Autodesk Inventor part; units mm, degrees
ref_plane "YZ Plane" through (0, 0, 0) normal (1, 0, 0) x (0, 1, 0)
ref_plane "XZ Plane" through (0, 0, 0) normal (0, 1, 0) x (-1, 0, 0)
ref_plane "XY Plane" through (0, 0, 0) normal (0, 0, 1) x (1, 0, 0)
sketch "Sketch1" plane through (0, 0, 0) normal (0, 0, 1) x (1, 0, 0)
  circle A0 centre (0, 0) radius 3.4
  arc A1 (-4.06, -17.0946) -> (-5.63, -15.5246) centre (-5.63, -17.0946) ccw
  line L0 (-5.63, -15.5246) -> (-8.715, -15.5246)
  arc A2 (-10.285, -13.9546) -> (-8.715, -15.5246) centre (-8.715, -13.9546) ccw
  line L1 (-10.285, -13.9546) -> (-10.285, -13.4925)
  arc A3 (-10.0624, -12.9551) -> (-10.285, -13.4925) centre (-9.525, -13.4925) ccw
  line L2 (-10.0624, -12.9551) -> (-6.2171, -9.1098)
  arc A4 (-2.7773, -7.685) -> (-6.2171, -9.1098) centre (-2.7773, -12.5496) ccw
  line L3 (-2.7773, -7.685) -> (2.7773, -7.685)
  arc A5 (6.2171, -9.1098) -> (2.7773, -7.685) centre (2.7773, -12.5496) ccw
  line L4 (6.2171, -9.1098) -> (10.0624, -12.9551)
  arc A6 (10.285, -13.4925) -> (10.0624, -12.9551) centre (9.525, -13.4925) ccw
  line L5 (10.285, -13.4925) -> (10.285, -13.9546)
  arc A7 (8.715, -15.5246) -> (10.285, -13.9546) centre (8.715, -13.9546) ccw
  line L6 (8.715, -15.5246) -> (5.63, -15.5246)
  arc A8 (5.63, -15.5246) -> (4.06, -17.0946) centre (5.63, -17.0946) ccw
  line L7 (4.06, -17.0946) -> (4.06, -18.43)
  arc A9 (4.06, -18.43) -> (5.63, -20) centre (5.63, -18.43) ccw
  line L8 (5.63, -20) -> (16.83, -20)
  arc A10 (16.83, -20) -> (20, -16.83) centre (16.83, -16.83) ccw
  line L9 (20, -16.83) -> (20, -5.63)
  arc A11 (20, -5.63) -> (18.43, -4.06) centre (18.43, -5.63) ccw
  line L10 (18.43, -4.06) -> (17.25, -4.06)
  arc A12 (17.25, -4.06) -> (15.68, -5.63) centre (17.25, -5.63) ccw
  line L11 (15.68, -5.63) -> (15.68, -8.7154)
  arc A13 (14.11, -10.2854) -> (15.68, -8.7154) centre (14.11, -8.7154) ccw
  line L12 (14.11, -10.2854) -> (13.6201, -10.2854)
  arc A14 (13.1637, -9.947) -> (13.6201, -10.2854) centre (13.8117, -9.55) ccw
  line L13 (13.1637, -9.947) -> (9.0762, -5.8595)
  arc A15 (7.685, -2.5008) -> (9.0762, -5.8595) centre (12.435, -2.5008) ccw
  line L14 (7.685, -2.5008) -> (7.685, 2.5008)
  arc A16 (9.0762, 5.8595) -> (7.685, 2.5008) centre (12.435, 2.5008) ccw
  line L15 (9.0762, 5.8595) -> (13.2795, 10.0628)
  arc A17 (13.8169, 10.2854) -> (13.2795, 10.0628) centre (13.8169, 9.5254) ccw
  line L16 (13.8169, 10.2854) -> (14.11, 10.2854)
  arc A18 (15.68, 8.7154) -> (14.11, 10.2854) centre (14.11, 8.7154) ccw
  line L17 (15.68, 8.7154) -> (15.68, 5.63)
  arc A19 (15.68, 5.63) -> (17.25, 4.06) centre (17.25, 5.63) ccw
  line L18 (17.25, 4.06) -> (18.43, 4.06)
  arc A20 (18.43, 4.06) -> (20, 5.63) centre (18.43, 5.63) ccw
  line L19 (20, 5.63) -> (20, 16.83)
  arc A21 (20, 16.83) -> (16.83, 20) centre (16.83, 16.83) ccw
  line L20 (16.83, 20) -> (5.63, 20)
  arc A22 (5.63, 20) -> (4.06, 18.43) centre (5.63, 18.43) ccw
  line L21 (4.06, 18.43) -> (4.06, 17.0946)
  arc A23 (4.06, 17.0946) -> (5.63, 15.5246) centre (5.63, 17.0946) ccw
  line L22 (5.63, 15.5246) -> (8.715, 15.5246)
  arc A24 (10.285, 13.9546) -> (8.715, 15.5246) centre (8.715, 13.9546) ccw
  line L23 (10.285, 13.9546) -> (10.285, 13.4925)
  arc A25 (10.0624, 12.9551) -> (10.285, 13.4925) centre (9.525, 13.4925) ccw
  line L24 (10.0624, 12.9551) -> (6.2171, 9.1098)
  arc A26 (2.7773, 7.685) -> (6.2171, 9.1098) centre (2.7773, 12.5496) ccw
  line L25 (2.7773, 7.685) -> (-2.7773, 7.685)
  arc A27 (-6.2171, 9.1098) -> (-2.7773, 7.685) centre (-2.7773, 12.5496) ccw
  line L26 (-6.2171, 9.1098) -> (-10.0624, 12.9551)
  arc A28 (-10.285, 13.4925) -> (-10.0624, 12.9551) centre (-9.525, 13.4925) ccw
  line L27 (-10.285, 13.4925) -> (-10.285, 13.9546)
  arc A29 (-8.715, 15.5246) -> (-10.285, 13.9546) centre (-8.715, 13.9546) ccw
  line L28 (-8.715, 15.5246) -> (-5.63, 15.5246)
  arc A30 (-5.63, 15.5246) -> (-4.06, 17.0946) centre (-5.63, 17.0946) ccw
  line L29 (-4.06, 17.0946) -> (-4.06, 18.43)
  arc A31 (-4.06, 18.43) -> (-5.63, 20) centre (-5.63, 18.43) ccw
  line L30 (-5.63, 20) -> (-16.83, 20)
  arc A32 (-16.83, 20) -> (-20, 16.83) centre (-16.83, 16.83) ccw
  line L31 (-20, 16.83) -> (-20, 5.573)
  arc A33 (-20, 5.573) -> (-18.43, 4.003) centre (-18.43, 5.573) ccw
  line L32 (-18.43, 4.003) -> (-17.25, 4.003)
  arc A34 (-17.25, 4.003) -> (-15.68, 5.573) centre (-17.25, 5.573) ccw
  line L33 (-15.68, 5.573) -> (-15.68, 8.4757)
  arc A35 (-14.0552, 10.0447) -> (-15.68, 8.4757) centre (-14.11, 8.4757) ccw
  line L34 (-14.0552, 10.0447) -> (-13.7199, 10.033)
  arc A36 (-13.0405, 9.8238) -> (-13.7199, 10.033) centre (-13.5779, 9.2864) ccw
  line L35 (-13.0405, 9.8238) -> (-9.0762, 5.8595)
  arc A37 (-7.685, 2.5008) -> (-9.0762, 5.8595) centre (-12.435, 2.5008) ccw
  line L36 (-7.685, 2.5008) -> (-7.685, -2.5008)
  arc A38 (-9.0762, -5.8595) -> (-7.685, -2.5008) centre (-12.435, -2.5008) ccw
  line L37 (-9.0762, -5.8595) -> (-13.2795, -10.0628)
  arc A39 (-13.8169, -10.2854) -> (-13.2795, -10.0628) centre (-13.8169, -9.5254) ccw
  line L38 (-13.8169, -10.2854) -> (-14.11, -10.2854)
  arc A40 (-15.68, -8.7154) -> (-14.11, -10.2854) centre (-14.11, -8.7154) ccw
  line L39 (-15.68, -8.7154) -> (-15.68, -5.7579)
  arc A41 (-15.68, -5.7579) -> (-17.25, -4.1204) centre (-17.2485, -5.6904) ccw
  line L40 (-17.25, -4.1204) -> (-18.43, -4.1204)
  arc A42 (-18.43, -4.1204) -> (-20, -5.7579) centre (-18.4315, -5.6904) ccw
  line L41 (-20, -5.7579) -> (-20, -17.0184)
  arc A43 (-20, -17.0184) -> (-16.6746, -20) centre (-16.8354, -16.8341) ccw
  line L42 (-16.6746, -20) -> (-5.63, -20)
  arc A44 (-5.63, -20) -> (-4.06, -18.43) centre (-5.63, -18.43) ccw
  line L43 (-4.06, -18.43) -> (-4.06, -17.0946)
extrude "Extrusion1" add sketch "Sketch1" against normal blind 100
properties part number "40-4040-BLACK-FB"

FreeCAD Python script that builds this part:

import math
import FreeCAD as App
import Part
import Sketcher

V = App.Vector

doc = App.newDocument("Part")
body = doc.addObject("PartDesign::Body", "Body")

sketch1 = body.newObject("Sketcher::SketchObject", "Sketch")
sketch1.AttachmentSupport = (doc.getObject("XY_Plane"), [""])
sketch1.MapMode = "FlatFace"
sketch1.addGeometry([
    Part.LineSegment(V(-4.06, -18.43, 0), V(-4.06, -17.0946, 0)),
    Part.ArcOfCircle(Part.Circle(V(-5.63, -17.0946, 0), V(0, 0, 1), 1.57), math.radians(0), math.radians(90)),
    Part.LineSegment(V(-5.63, -15.5246, 0), V(-8.715, -15.5246, 0)),
    Part.ArcOfCircle(Part.Circle(V(-8.715, -13.9546, 0), V(0, 0, 1), 1.57), math.radians(180), math.radians(270)),
    Part.LineSegment(V(-10.285, -13.9546, 0), V(-10.285, -13.4925, 0)),
    Part.ArcOfCircle(Part.Circle(V(-9.525, -13.4925, 0), V(0, 0, 1), 0.759998), math.radians(135), math.radians(180)),
    Part.LineSegment(V(-10.0624, -12.9551, 0), V(-6.2171, -9.1098, 0)),
    Part.ArcOfCircle(Part.Circle(V(-2.7773, -12.5496, 0), V(0, 0, 1), 4.8646), math.radians(90), math.radians(135)),
    Part.LineSegment(V(-2.7773, -7.685, 0), V(2.7773, -7.685, 0)),
    Part.ArcOfCircle(Part.Circle(V(2.7773, -12.5496, 0), V(0, 0, 1), 4.864612), math.radians(45), math.radians(90)),
    Part.LineSegment(V(6.2171, -9.1098, 0), V(10.0624, -12.9551, 0)),
    Part.ArcOfCircle(Part.Circle(V(9.525, -13.4925, 0), V(0, 0, 1), 0.76), math.radians(0), math.radians(45)),
    Part.LineSegment(V(10.285, -13.4925, 0), V(10.285, -13.9546, 0)),
    Part.ArcOfCircle(Part.Circle(V(8.715, -13.9546, 0), V(0, 0, 1), 1.57), math.radians(-90), math.radians(0)),
    Part.LineSegment(V(8.715, -15.5246, 0), V(5.63, -15.5246, 0)),
    Part.ArcOfCircle(Part.Circle(V(5.63, -17.0946, 0), V(0, 0, 1), 1.57), math.radians(90), math.radians(180)),
    Part.LineSegment(V(4.06, -17.0946, 0), V(4.06, -18.43, 0)),
    Part.ArcOfCircle(Part.Circle(V(5.63, -18.43, 0), V(0, 0, 1), 1.57), math.radians(180), math.radians(270)),
    Part.LineSegment(V(5.63, -20, 0), V(16.83, -20, 0)),
    Part.ArcOfCircle(Part.Circle(V(16.83, -16.83, 0), V(0, 0, 1), 3.17), math.radians(-90), math.radians(0)),
    Part.LineSegment(V(20, -16.83, 0), V(20, -5.63, 0)),
    Part.ArcOfCircle(Part.Circle(V(18.43, -5.63, 0), V(0, 0, 1), 1.57), math.radians(0), math.radians(90)),
    Part.LineSegment(V(18.43, -4.06, 0), V(17.25, -4.06, 0)),
    Part.ArcOfCircle(Part.Circle(V(17.25, -5.63, 0), V(0, 0, 1), 1.57), math.radians(90), math.radians(180)),
    Part.LineSegment(V(15.68, -5.63, 0), V(15.68, -8.7154, 0)),
    Part.ArcOfCircle(Part.Circle(V(14.11, -8.7154, 0), V(0, 0, 1), 1.57), math.radians(-90), math.radians(0)),
    Part.LineSegment(V(14.11, -10.2854, 0), V(13.6201, -10.2854, 0)),
    Part.ArcOfCircle(Part.Circle(V(13.8117, -9.55, 0), V(0, 0, 1), 0.759943), math.radians(-148.506101), math.radians(-104.603112)),
    Part.LineSegment(V(13.1637, -9.947, 0), V(9.0762, -5.8595, 0)),
    Part.ArcOfCircle(Part.Circle(V(12.435, -2.5008, 0), V(0, 0, 1), 4.75), math.radians(180), math.radians(224.999147)),
    Part.LineSegment(V(7.685, -2.5008, 0), V(7.685, 2.5008, 0)),
    Part.ArcOfCircle(Part.Circle(V(12.435, 2.5008, 0), V(0, 0, 1), 4.74999), math.radians(135.000853), math.radians(180)),
    Part.LineSegment(V(9.0762, 5.8595, 0), V(13.2795, 10.0628, 0)),
    Part.ArcOfCircle(Part.Circle(V(13.8169, 9.5254, 0), V(0, 0, 1), 0.76), math.radians(90), math.radians(135)),
    Part.LineSegment(V(13.8169, 10.2854, 0), V(14.11, 10.2854, 0)),
    Part.ArcOfCircle(Part.Circle(V(14.11, 8.7154, 0), V(0, 0, 1), 1.57), math.radians(0), math.radians(90)),
    Part.LineSegment(V(15.68, 8.7154, 0), V(15.68, 5.63, 0)),
    Part.ArcOfCircle(Part.Circle(V(17.25, 5.63, 0), V(0, 0, 1), 1.57), math.radians(180), math.radians(270)),
    Part.LineSegment(V(17.25, 4.06, 0), V(18.43, 4.06, 0)),
    Part.ArcOfCircle(Part.Circle(V(18.43, 5.63, 0), V(0, 0, 1), 1.57), math.radians(-90), math.radians(0)),
    Part.LineSegment(V(20, 5.63, 0), V(20, 16.83, 0)),
    Part.ArcOfCircle(Part.Circle(V(16.83, 16.83, 0), V(0, 0, 1), 3.17), math.radians(0), math.radians(90)),
    Part.LineSegment(V(16.83, 20, 0), V(5.63, 20, 0)),
    Part.ArcOfCircle(Part.Circle(V(5.63, 18.43, 0), V(0, 0, 1), 1.57), math.radians(90), math.radians(180)),
    Part.LineSegment(V(4.06, 18.43, 0), V(4.06, 17.0946, 0)),
    Part.ArcOfCircle(Part.Circle(V(5.63, 17.0946, 0), V(0, 0, 1), 1.57), math.radians(180), math.radians(270)),
    Part.LineSegment(V(5.63, 15.5246, 0), V(8.715, 15.5246, 0)),
    Part.ArcOfCircle(Part.Circle(V(8.715, 13.9546, 0), V(0, 0, 1), 1.57), math.radians(0), math.radians(90)),
    Part.LineSegment(V(10.285, 13.9546, 0), V(10.285, 13.4925, 0)),
    Part.ArcOfCircle(Part.Circle(V(9.525, 13.4925, 0), V(0, 0, 1), 0.759998), math.radians(-45), math.radians(0)),
    Part.LineSegment(V(10.0624, 12.9551, 0), V(6.2171, 9.1098, 0)),
    Part.ArcOfCircle(Part.Circle(V(2.7773, 12.5496, 0), V(0, 0, 1), 4.8646), math.radians(-90), math.radians(-45)),
    Part.LineSegment(V(2.7773, 7.685, 0), V(-2.7773, 7.685, 0)),
    Part.ArcOfCircle(Part.Circle(V(-2.7773, 12.5496, 0), V(0, 0, 1), 4.864612), math.radians(-135), math.radians(-90)),
    Part.LineSegment(V(-6.2171, 9.1098, 0), V(-10.0624, 12.9551, 0)),
    Part.ArcOfCircle(Part.Circle(V(-9.525, 13.4925, 0), V(0, 0, 1), 0.76), math.radians(180), math.radians(225)),
    Part.LineSegment(V(-10.285, 13.4925, 0), V(-10.285, 13.9546, 0)),
    Part.ArcOfCircle(Part.Circle(V(-8.715, 13.9546, 0), V(0, 0, 1), 1.57), math.radians(90), math.radians(180)),
    Part.LineSegment(V(-8.715, 15.5246, 0), V(-5.63, 15.5246, 0)),
    Part.ArcOfCircle(Part.Circle(V(-5.63, 17.0946, 0), V(0, 0, 1), 1.57), math.radians(-90), math.radians(0)),
    Part.LineSegment(V(-4.06, 17.0946, 0), V(-4.06, 18.43, 0)),
    Part.ArcOfCircle(Part.Circle(V(-5.63, 18.43, 0), V(0, 0, 1), 1.57), math.radians(0), math.radians(90)),
    Part.LineSegment(V(-5.63, 20, 0), V(-16.83, 20, 0)),
    Part.ArcOfCircle(Part.Circle(V(-16.83, 16.83, 0), V(0, 0, 1), 3.17), math.radians(90), math.radians(180)),
    Part.LineSegment(V(-20, 16.83, 0), V(-20, 5.573, 0)),
    Part.ArcOfCircle(Part.Circle(V(-18.43, 5.573, 0), V(0, 0, 1), 1.57), math.radians(180), math.radians(270)),
    Part.LineSegment(V(-18.43, 4.003, 0), V(-17.25, 4.003, 0)),
    Part.ArcOfCircle(Part.Circle(V(-17.25, 5.573, 0), V(0, 0, 1), 1.57), math.radians(-90), math.radians(0)),
    Part.LineSegment(V(-15.68, 5.573, 0), V(-15.68, 8.4757, 0)),
    Part.ArcOfCircle(Part.Circle(V(-14.11, 8.4757, 0), V(0, 0, 1), 1.569957), math.radians(87.99966), math.radians(180)),
    Part.LineSegment(V(-14.0552, 10.0447, 0), V(-13.7199, 10.033, 0)),
    Part.ArcOfCircle(Part.Circle(V(-13.5779, 9.2864, 0), V(0, 0, 1), 0.759998), math.radians(45), math.radians(100.768781)),
    Part.LineSegment(V(-13.0405, 9.8238, 0), V(-9.0762, 5.8595, 0)),
    Part.ArcOfCircle(Part.Circle(V(-12.435, 2.5008, 0), V(0, 0, 1), 4.75), math.radians(0), math.radians(44.999147)),
    Part.LineSegment(V(-7.685, 2.5008, 0), V(-7.685, -2.5008, 0)),
    Part.ArcOfCircle(Part.Circle(V(-12.435, -2.5008, 0), V(0, 0, 1), 4.74999), math.radians(-44.999147), math.radians(0)),
    Part.LineSegment(V(-9.0762, -5.8595, 0), V(-13.2795, -10.0628, 0)),
    Part.ArcOfCircle(Part.Circle(V(-13.8169, -9.5254, 0), V(0, 0, 1), 0.76), math.radians(-90), math.radians(-45)),
    Part.LineSegment(V(-13.8169, -10.2854, 0), V(-14.11, -10.2854, 0)),
    Part.ArcOfCircle(Part.Circle(V(-14.11, -8.7154, 0), V(0, 0, 1), 1.57), math.radians(180), math.radians(270)),
    Part.LineSegment(V(-15.68, -8.7154, 0), V(-15.68, -5.7579, 0)),
    Part.ArcOfCircle(Part.Circle(V(-17.2485, -5.6904, 0), V(0, 0, 1), 1.569952), math.radians(-2.464189), math.radians(90.054741)),
    Part.LineSegment(V(-17.25, -4.1204, 0), V(-18.43, -4.1204, 0)),
    Part.ArcOfCircle(Part.Circle(V(-18.4315, -5.6904, 0), V(0, 0, 1), 1.570001), math.radians(89.945259), math.radians(182.464189)),
    Part.LineSegment(V(-20, -5.7579, 0), V(-20, -17.0184, 0)),
    Part.ArcOfCircle(Part.Circle(V(-16.8354, -16.8341, 0), V(0, 0, 1), 3.169962), math.radians(-176.666973), math.radians(-87.092375)),
    Part.LineSegment(V(-16.6746, -20, 0), V(-5.63, -20, 0)),
    Part.ArcOfCircle(Part.Circle(V(-5.63, -18.43, 0), V(0, 0, 1), 1.57), math.radians(-90), math.radians(0)),
    Part.Circle(V(0, 0, 0), V(0, 0, 1), 3.4),
], False)
sketch1.addConstraint([
    Sketcher.Constraint("Tangent", 0, 2, 1, 1),
    Sketcher.Constraint("Tangent", 1, 2, 2, 1),
    Sketcher.Constraint("Tangent", 2, 2, 3, 2),
    Sketcher.Constraint("Tangent", 3, 1, 4, 1),
    Sketcher.Constraint("Tangent", 4, 2, 5, 2),
    Sketcher.Constraint("Tangent", 5, 1, 6, 1),
    Sketcher.Constraint("Tangent", 6, 2, 7, 2),
    Sketcher.Constraint("Tangent", 7, 1, 8, 1),
    Sketcher.Constraint("Tangent", 8, 2, 9, 2),
    Sketcher.Constraint("Tangent", 9, 1, 10, 1),
    Sketcher.Constraint("Tangent", 10, 2, 11, 2),
    Sketcher.Constraint("Tangent", 11, 1, 12, 1),
    Sketcher.Constraint("Tangent", 12, 2, 13, 2),
    Sketcher.Constraint("Tangent", 13, 1, 14, 1),
    Sketcher.Constraint("Tangent", 14, 2, 15, 1),
    Sketcher.Constraint("Tangent", 15, 2, 16, 1),
    Sketcher.Constraint("Tangent", 16, 2, 17, 1),
    Sketcher.Constraint("Tangent", 17, 2, 18, 1),
    Sketcher.Constraint("Tangent", 18, 2, 19, 1),
    Sketcher.Constraint("Tangent", 19, 2, 20, 1),
    Sketcher.Constraint("Tangent", 20, 2, 21, 1),
    Sketcher.Constraint("Tangent", 21, 2, 22, 1),
    Sketcher.Constraint("Tangent", 22, 2, 23, 1),
    Sketcher.Constraint("Tangent", 23, 2, 24, 1),
    Sketcher.Constraint("Tangent", 24, 2, 25, 2),
    Sketcher.Constraint("Tangent", 25, 1, 26, 1),
    Sketcher.Constraint("Coincident", 26, 2, 27, 2),
    Sketcher.Constraint("Coincident", 27, 1, 28, 1),
    Sketcher.Constraint("Tangent", 28, 2, 29, 2),
    Sketcher.Constraint("Tangent", 29, 1, 30, 1),
    Sketcher.Constraint("Tangent", 30, 2, 31, 2),
    Sketcher.Constraint("Tangent", 31, 1, 32, 1),
    Sketcher.Constraint("Tangent", 32, 2, 33, 2),
    Sketcher.Constraint("Tangent", 33, 1, 34, 1),
    Sketcher.Constraint("Tangent", 34, 2, 35, 2),
    Sketcher.Constraint("Tangent", 35, 1, 36, 1),
    Sketcher.Constraint("Tangent", 36, 2, 37, 1),
    Sketcher.Constraint("Tangent", 37, 2, 38, 1),
    Sketcher.Constraint("Tangent", 38, 2, 39, 1),
    Sketcher.Constraint("Tangent", 39, 2, 40, 1),
    Sketcher.Constraint("Tangent", 40, 2, 41, 1),
    Sketcher.Constraint("Tangent", 41, 2, 42, 1),
    Sketcher.Constraint("Tangent", 42, 2, 43, 1),
    Sketcher.Constraint("Tangent", 43, 2, 44, 1),
    Sketcher.Constraint("Tangent", 44, 2, 45, 1),
    Sketcher.Constraint("Tangent", 45, 2, 46, 1),
    Sketcher.Constraint("Tangent", 46, 2, 47, 2),
    Sketcher.Constraint("Tangent", 47, 1, 48, 1),
    Sketcher.Constraint("Tangent", 48, 2, 49, 2),
    Sketcher.Constraint("Tangent", 49, 1, 50, 1),
    Sketcher.Constraint("Tangent", 50, 2, 51, 2),
    Sketcher.Constraint("Tangent", 51, 1, 52, 1),
    Sketcher.Constraint("Tangent", 52, 2, 53, 2),
    Sketcher.Constraint("Tangent", 53, 1, 54, 1),
    Sketcher.Constraint("Tangent", 54, 2, 55, 2),
    Sketcher.Constraint("Tangent", 55, 1, 56, 1),
    Sketcher.Constraint("Tangent", 56, 2, 57, 2),
    Sketcher.Constraint("Tangent", 57, 1, 58, 1),
    Sketcher.Constraint("Tangent", 58, 2, 59, 1),
    Sketcher.Constraint("Tangent", 59, 2, 60, 1),
    Sketcher.Constraint("Tangent", 60, 2, 61, 1),
    Sketcher.Constraint("Tangent", 61, 2, 62, 1),
    Sketcher.Constraint("Tangent", 62, 2, 63, 1),
    Sketcher.Constraint("Tangent", 63, 2, 64, 1),
    Sketcher.Constraint("Tangent", 64, 2, 65, 1),
    Sketcher.Constraint("Tangent", 65, 2, 66, 1),
    Sketcher.Constraint("Tangent", 66, 2, 67, 1),
    Sketcher.Constraint("Tangent", 67, 2, 68, 1),
    Sketcher.Constraint("Tangent", 68, 2, 69, 2),
    Sketcher.Constraint("Tangent", 69, 1, 70, 1),
    Sketcher.Constraint("Coincident", 70, 2, 71, 2),
    Sketcher.Constraint("Tangent", 71, 1, 72, 1),
    Sketcher.Constraint("Tangent", 72, 2, 73, 2),
    Sketcher.Constraint("Tangent", 73, 1, 74, 1),
    Sketcher.Constraint("Tangent", 74, 2, 75, 2),
    Sketcher.Constraint("Tangent", 75, 1, 76, 1),
    Sketcher.Constraint("Tangent", 76, 2, 77, 2),
    Sketcher.Constraint("Tangent", 77, 1, 78, 1),
    Sketcher.Constraint("Tangent", 78, 2, 79, 2),
    Sketcher.Constraint("Tangent", 79, 1, 80, 1),
    Sketcher.Constraint("Coincident", 80, 2, 81, 1),
    Sketcher.Constraint("Coincident", 81, 2, 82, 1),
    Sketcher.Constraint("Coincident", 82, 2, 83, 1),
    Sketcher.Constraint("Coincident", 83, 2, 84, 1),
    Sketcher.Constraint("Coincident", 84, 2, 85, 1),
    Sketcher.Constraint("Coincident", 85, 2, 86, 1),
    Sketcher.Constraint("Tangent", 86, 2, 87, 1),
    Sketcher.Constraint("Tangent", 87, 2, 0, 1),
    Sketcher.Constraint("Vertical", 0),
    Sketcher.Constraint("Horizontal", 2),
    Sketcher.Constraint("Vertical", 4),
    Sketcher.Constraint("Horizontal", 8),
    Sketcher.Constraint("Vertical", 12),
    Sketcher.Constraint("Horizontal", 14),
    Sketcher.Constraint("Vertical", 16),
    Sketcher.Constraint("Horizontal", 18),
    Sketcher.Constraint("Vertical", 20),
    Sketcher.Constraint("Horizontal", 22),
    Sketcher.Constraint("Vertical", 24),
    Sketcher.Constraint("Horizontal", 26),
    Sketcher.Constraint("Vertical", 30),
    Sketcher.Constraint("Horizontal", 34),
    Sketcher.Constraint("Vertical", 36),
    Sketcher.Constraint("Horizontal", 38),
    Sketcher.Constraint("Vertical", 40),
    Sketcher.Constraint("Horizontal", 42),
    Sketcher.Constraint("Vertical", 44),
    Sketcher.Constraint("Horizontal", 46),
    Sketcher.Constraint("Vertical", 48),
    Sketcher.Constraint("Horizontal", 52),
    Sketcher.Constraint("Vertical", 56),
    Sketcher.Constraint("Horizontal", 58),
    Sketcher.Constraint("Vertical", 60),
    Sketcher.Constraint("Horizontal", 62),
    Sketcher.Constraint("Vertical", 64),
    Sketcher.Constraint("Horizontal", 66),
    Sketcher.Constraint("Vertical", 68),
    Sketcher.Constraint("Vertical", 74),
    Sketcher.Constraint("Horizontal", 78),
    Sketcher.Constraint("Vertical", 80),
    Sketcher.Constraint("Horizontal", 82),
    Sketcher.Constraint("Vertical", 84),
    Sketcher.Constraint("Horizontal", 86),
    Sketcher.Constraint("Coincident", 88, 3, -1, 1),
    Sketcher.Constraint("Equal", 1, 3),
    Sketcher.Constraint("Equal", 7, 9),
    Sketcher.Constraint("Equal", 5, 11),
    Sketcher.Constraint("Equal", 3, 13),
    Sketcher.Constraint("Equal", 13, 15),
    Sketcher.Constraint("Equal", 15, 17),
    Sketcher.Constraint("Equal", 17, 21),
    Sketcher.Constraint("Equal", 21, 23),
    Sketcher.Constraint("Equal", 23, 25),
    Sketcher.Constraint("Equal", 11, 27),
    Sketcher.Constraint("Equal", 29, 31),
    Sketcher.Constraint("Equal", 27, 33),
    Sketcher.Constraint("Equal", 25, 35),
    Sketcher.Constraint("Equal", 35, 37),
    Sketcher.Constraint("Equal", 37, 39),
    Sketcher.Constraint("Equal", 19, 41),
    Sketcher.Constraint("Equal", 39, 43),
    Sketcher.Constraint("Equal", 43, 45),
    Sketcher.Constraint("Equal", 45, 47),
    Sketcher.Constraint("Equal", 33, 49),
    Sketcher.Constraint("Equal", 9, 51),
    Sketcher.Constraint("Equal", 51, 53),
    Sketcher.Constraint("Equal", 49, 55),
    Sketcher.Constraint("Equal", 47, 57),
    Sketcher.Constraint("Equal", 57, 59),
    Sketcher.Constraint("Equal", 59, 61),
    Sketcher.Constraint("Equal", 41, 63),
    Sketcher.Constraint("Equal", 61, 65),
    Sketcher.Constraint("Equal", 65, 67),
    Sketcher.Constraint("Equal", 67, 69),
    Sketcher.Constraint("Equal", 55, 71),
    Sketcher.Constraint("Equal", 31, 73),
    Sketcher.Constraint("Equal", 73, 75),
    Sketcher.Constraint("Equal", 71, 77),
    Sketcher.Constraint("Equal", 69, 79),
    Sketcher.Constraint("Equal", 79, 81),
    Sketcher.Constraint("Equal", 81, 83),
    Sketcher.Constraint("Equal", 63, 85),
    Sketcher.Constraint("Equal", 83, 87),
    Sketcher.Constraint("Symmetric", 1, 3, 45, 3, -1, 1),
    Sketcher.Constraint("Symmetric", 5, 3, 49, 3, -1, 1),
    Sketcher.Constraint("Symmetric", 7, 3, 51, 3, -1, 1),
    Sketcher.Constraint("Symmetric", 11, 3, 55, 3, -1, 1),
    Sketcher.Constraint("Symmetric", 15, 3, 59, 3, -1, 1),
    Sketcher.Constraint("Symmetric", 19, 3, 63, 3, -1, 1),
    Sketcher.Constraint("Symmetric", 29, 3, 73, 3, -1, 1),
    Sketcher.Constraint("Symmetric", 33, 3, 77, 3, -1, 1),
    Sketcher.Constraint("Symmetric", 5, 3, 11, 3, -2),
    Sketcher.Constraint("Symmetric", 1, 3, 15, 3, -2),
    Sketcher.Constraint("Symmetric", 41, 3, 63, 3, -2),
    Sketcher.Constraint("Symmetric", 25, 3, 79, 3, -2),
    Sketcher.Constraint("Symmetric", 31, 1, 72, 2, -2),
    Sketcher.Constraint("Symmetric", 28, 2, 75, 1, -2),
    Sketcher.Constraint("Symmetric", 23, 3, 37, 3, -1),
    Sketcher.Constraint("Perpendicular", 6, 10),
    Sketcher.Constraint("Parallel", 10, 28),
    Sketcher.Constraint("Perpendicular", 28, 32),
    Sketcher.Constraint("Perpendicular", 50, 54),
    Sketcher.Constraint("Horizontal", 17, 3, 87, 3),
    Sketcher.Constraint("Horizontal", 80, 2, 83, 2),
    Sketcher.Constraint("Vertical", 69, 3, 79, 3),
    Sketcher.Constraint("Vertical", 66, 2, 81, 2),
    Sketcher.Constraint("Vertical", 65, 2, 82, 2),
    Sketcher.Constraint("Vertical", 64, 2, 83, 2),
    Sketcher.Constraint("Equal", 62, 20),
    Sketcher.Constraint("Diameter", 88, 6.8),
    Sketcher.Constraint("Radius", 1, 1.57),
    Sketcher.Constraint("Radius", 5, 0.76),
    Sketcher.Constraint("Radius", 19, 3.17),
    Sketcher.Constraint("Radius", 29, 4.75),
    Sketcher.Constraint("DistanceX", 18, 1, 18, 2, 11.2),
    Sketcher.Constraint("DistanceY", 17, 2, -1, 1, 20.0),
    Sketcher.Constraint("DistanceX", -1, 1, 19, 2, 20.0),
    Sketcher.Constraint("DistanceX", 22, 2, 22, 1, 1.18),
    Sketcher.Constraint("DistanceX", 26, 2, 26, 1, 0.49),
    Sketcher.Constraint("Radius", 7, 4.8646),
    Sketcher.Constraint("DistanceX", 2, 2, 2, 1, 3.085),
    Sketcher.Constraint("DistanceX", 34, 1, 34, 2, 0.293),
    Sketcher.Constraint("DistanceY", 4, 1, 4, 2, 0.462),
    Sketcher.Constraint("DistanceY", 64, 2, 64, 1, 11.257),
    Sketcher.Constraint("DistanceY", 27, 3, -1, 1, 9.55),
    Sketcher.Constraint("DistanceX", 70, 2, -1, 1, 13.72),
    Sketcher.Constraint("Distance", 6, 5.438),
    Sketcher.Constraint("DistanceX", 86, 1, 86, 2, 11.0446),
    Sketcher.Constraint("DistanceY", 0, 1, 0, 2, 1.3354),
    Sketcher.Constraint("DistanceY", 24, 2, 24, 1, 3.0854),
    Sketcher.Constraint("DistanceY", 30, 1, 30, 2, 5.0016),
    Sketcher.Constraint("DistanceY", 68, 1, 68, 2, 2.9027),
    Sketcher.Constraint("DistanceY", 80, 1, 80, 2, 2.9575),
    Sketcher.Constraint("DistanceY", 84, 2, 84, 1, 11.2605),
    Sketcher.Constraint("DistanceX", 71, 3, -1, 1, 13.578),
    Sketcher.Constraint("DistanceX", 81, 3, -1, 1, 17.2485),
])
pad1 = body.newObject("PartDesign::Pad", "Pad")
pad1.Profile = sketch1
pad1.Length = 100
pad1.Reversed = True

doc.recompute()
